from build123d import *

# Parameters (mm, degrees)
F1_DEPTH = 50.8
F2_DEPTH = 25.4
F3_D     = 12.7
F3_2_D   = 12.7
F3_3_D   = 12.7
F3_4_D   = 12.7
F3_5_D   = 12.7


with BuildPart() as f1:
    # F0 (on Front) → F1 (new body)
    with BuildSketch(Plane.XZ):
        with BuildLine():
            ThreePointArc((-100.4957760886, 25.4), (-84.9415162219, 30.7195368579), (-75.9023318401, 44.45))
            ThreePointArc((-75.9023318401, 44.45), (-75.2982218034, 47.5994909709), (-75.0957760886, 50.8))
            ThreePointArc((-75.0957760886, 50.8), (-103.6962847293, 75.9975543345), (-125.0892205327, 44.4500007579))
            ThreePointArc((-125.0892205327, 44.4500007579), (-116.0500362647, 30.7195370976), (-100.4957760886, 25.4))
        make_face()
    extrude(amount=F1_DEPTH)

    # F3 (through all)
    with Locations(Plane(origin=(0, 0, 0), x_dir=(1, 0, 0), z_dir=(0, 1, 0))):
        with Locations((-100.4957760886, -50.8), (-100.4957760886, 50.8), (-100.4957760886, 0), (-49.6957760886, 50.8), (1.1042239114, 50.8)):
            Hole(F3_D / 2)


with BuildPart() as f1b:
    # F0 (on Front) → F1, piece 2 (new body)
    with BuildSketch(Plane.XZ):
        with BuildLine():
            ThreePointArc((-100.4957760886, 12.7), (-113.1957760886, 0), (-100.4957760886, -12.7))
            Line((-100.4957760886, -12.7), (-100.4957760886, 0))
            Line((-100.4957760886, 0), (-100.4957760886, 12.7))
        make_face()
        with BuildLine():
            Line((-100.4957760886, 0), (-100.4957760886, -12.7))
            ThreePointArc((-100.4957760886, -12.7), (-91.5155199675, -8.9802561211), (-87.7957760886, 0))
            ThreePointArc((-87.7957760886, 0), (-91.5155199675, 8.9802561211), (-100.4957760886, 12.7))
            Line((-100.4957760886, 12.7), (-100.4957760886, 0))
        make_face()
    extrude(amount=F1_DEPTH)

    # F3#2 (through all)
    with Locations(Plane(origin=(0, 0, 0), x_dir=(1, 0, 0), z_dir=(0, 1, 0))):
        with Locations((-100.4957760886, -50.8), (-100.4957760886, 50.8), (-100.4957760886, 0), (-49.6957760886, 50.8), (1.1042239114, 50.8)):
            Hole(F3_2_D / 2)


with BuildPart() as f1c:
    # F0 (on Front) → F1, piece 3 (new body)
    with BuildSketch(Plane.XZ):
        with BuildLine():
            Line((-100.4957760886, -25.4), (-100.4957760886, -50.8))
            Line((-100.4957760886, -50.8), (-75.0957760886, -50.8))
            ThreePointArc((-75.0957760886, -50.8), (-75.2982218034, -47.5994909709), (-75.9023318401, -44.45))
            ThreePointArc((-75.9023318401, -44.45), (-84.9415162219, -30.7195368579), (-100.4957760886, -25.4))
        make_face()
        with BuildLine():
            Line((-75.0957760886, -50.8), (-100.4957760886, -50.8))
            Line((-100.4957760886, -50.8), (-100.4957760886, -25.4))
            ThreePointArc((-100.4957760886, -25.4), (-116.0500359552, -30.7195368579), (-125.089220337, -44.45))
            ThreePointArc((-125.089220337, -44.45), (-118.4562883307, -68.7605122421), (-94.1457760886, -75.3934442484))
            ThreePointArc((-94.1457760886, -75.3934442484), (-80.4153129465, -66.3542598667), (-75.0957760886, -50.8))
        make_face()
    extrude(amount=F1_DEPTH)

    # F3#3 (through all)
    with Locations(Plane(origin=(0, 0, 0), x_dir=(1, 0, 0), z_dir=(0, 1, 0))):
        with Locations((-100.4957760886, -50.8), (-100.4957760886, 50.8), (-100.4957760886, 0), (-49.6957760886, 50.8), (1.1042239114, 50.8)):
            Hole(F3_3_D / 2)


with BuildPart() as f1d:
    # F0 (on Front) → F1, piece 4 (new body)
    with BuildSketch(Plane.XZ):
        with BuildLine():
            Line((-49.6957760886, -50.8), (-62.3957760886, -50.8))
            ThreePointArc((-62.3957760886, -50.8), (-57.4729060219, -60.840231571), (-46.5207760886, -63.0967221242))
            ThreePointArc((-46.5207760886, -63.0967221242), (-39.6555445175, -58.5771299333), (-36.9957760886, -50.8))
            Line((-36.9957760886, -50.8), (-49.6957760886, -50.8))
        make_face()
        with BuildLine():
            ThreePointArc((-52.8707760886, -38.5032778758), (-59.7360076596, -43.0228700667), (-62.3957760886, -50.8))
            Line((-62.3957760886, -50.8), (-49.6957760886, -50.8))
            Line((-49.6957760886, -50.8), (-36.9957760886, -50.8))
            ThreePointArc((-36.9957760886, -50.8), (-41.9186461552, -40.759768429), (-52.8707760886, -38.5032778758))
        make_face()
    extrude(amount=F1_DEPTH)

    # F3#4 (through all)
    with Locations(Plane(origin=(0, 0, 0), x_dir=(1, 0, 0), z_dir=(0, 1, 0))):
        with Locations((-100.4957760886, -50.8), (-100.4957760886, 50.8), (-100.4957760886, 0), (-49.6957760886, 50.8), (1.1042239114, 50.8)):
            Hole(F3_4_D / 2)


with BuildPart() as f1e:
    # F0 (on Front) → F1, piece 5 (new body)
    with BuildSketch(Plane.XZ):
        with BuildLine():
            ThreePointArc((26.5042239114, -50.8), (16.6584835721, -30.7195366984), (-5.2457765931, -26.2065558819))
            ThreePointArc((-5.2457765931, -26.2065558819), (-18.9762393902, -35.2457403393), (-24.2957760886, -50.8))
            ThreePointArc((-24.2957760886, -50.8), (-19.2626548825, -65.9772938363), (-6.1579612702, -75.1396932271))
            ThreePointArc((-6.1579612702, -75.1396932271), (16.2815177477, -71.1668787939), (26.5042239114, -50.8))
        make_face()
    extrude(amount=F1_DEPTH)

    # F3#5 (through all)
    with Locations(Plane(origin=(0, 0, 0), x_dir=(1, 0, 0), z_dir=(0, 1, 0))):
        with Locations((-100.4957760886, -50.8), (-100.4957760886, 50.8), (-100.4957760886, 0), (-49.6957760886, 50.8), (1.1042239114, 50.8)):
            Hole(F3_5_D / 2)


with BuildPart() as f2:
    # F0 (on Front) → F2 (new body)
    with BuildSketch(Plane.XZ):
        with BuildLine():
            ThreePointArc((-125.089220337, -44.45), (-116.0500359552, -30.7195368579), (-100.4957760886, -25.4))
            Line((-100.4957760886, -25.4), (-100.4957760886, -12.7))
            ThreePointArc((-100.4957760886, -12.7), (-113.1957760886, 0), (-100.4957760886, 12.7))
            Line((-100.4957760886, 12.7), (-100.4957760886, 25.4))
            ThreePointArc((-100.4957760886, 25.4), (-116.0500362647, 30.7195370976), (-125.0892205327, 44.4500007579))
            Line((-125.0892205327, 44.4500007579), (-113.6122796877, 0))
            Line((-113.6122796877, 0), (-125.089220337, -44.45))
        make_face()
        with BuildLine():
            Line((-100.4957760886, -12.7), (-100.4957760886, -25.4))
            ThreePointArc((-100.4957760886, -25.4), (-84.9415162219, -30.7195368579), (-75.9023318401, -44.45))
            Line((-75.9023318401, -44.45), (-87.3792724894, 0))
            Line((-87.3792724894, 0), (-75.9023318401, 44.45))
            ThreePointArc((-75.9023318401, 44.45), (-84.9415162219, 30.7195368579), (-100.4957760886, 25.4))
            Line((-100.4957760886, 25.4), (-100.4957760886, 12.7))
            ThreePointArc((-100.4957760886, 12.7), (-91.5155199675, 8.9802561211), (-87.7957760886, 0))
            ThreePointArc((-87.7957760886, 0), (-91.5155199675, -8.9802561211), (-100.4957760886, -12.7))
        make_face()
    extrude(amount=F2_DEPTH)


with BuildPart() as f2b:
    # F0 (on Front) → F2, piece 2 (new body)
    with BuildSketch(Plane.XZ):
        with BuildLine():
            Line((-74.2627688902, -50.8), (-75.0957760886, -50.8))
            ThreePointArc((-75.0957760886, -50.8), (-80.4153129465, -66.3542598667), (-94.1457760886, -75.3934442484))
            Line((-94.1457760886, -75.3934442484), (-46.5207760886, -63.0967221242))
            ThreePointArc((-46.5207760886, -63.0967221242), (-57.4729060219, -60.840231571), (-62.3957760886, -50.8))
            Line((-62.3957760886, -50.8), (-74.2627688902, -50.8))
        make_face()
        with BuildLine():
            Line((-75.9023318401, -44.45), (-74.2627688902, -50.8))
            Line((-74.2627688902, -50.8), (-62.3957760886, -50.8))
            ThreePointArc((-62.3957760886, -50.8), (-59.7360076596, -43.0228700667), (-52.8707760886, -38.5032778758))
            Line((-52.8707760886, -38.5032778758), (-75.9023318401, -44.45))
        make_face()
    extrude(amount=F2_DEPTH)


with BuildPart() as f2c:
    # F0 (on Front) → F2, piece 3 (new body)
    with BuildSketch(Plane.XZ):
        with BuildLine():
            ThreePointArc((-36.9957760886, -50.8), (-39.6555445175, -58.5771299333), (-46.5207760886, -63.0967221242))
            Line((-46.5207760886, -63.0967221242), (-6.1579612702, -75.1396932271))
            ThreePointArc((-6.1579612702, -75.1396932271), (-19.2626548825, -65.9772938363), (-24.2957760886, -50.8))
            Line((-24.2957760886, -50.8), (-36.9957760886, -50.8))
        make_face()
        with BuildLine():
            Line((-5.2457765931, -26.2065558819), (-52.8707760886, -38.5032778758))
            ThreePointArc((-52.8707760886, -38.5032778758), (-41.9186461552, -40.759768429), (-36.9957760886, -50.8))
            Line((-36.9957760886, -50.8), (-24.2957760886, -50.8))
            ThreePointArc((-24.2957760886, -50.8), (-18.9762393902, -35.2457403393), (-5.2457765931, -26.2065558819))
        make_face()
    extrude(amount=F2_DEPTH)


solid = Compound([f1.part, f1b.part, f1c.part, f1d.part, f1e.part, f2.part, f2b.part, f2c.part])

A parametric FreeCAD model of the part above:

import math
import FreeCAD as App
import Part
import Sketcher

V = App.Vector
Q = App.Units.Quantity

doc = App.newDocument("Part")
body = doc.addObject("PartDesign::Body", "Body")

# Sketch on XZ plane
sketch1 = body.newObject("Sketcher::SketchObject", "Sketch")
sketch1.AttachmentSupport = (doc.getObject("XZ_Plane"), [""])
sketch1.MapMode = "FlatFace"
sketch1.addGeometry(Part.ArcOfCircle(Part.Circle(V(-100, 51, 0), V(0, 0, 1), 25), math.radians(-90), math.radians(-14)), False)
sketch1.addGeometry(Part.ArcOfCircle(Part.Circle(V(-100, 51, 0), V(0, 0, 1), 25), math.radians(-14.48), math.radians(0)), False)
sketch1.addGeometry(Part.ArcOfCircle(Part.Circle(V(-100, 51, 0), V(0, 0, 1), 25), math.radians(0), math.radians(194)), False)
sketch1.addGeometry(Part.ArcOfCircle(Part.Circle(V(-100, 51, 0), V(0, 0, 1), 25), math.radians(-166), math.radians(-90)), False)
sketch1.addConstraint(Sketcher.Constraint("Tangent", 0, 2, 1, 1))
sketch1.addConstraint(Sketcher.Constraint("Tangent", 1, 2, 2, 1))
sketch1.addConstraint(Sketcher.Constraint("Tangent", 2, 2, 3, 1))
sketch1.addConstraint(Sketcher.Constraint("Tangent", 3, 2, 0, 1))
sketch1.addConstraint(Sketcher.Constraint("Equal", 0, 1))
sketch1.addConstraint(Sketcher.Constraint("Horizontal", 3, 3, 1, 2))
sketch1.addConstraint(Sketcher.Constraint("Horizontal", 0, 2, 2, 2))
sketch1.addConstraint(Sketcher.Constraint("Vertical", 2, 3, 3, 2))
sketch1.addConstraint(Sketcher.Constraint("Radius", 0, Q("1 in")))
sketch1.addConstraint(Sketcher.Constraint("DistanceY", -1, 1, 0, 3, Q("2 in")))
sketch1.addConstraint(Sketcher.Constraint("DistanceY", -1, 1, 0, 2, Q("1.75 in")))
sketch1.addConstraint(Sketcher.Constraint("DistanceX", 0, 2, -1, 1, 75.902332))
pad1 = body.newObject("PartDesign::Pad", "Pad")
pad1.Profile = sketch1
pad1.Length = Q("2 in")

# Sketch on XZ plane
sketch2 = body.newObject("Sketcher::SketchObject", "Sketch001")
sketch2.AttachmentSupport = (doc.getObject("XZ_Plane"), [""])
sketch2.MapMode = "FlatFace"
sketch2.addGeometry(Part.Circle(V(-100, 51, 0), V(0, 0, 1), 6), False)
sketch2.addGeometry(Part.Circle(V(-100, -51, 0), V(0, 0, 1), 6), False)
sketch2.addGeometry(Part.Circle(V(-100, 0, 0), V(0, 0, 1), 6), False)
sketch2.addGeometry(Part.Circle(V(-50, -51, 0), V(0, 0, 1), 6), False)
sketch2.addGeometry(Part.Circle(V(1, -51, 0), V(0, 0, 1), 6), False)
sketch2.addConstraint(Sketcher.Constraint("Equal", 0, 1))
sketch2.addConstraint(Sketcher.Constraint("Equal", 1, 2))
sketch2.addConstraint(Sketcher.Constraint("Equal", 2, 3))
sketch2.addConstraint(Sketcher.Constraint("Equal", 3, 4))
sketch2.addConstraint(Sketcher.Constraint("Symmetric", 0, 3, 1, 3, -1))
sketch2.addConstraint(Sketcher.Constraint("PointOnObject", 2, 3, -1))
sketch2.addConstraint(Sketcher.Constraint("Horizontal", 1, 3, 3, 3))
sketch2.addConstraint(Sketcher.Constraint("Horizontal", 3, 3, 4, 3))
sketch2.addConstraint(Sketcher.Constraint("Vertical", 1, 3, 2, 3))
sketch2.addConstraint(Sketcher.Constraint("Diameter", 0, Q("0.5 in")))
sketch2.addConstraint(Sketcher.Constraint("DistanceY", -1, 1, 0, 3, Q("2 in")))
sketch2.addConstraint(Sketcher.Constraint("DistanceX", 1, 3, 3, 3, Q("2 in")))
sketch2.addConstraint(Sketcher.Constraint("DistanceX", 3, 3, 4, 3, Q("2 in")))
sketch2.addConstraint(Sketcher.Constraint("DistanceX", 0, 3, -1, 1, 100.495776))
doc.recompute()
hole = body.newObject("PartDesign::Hole", "Hole")
hole.Profile = sketch2
hole.ThreadType = "None"
hole.Diameter = Q("0.5 in")
hole.DepthType = "ThroughAll"
hole.Reversed = True
body2 = doc.addObject("PartDesign::Body", "Body001")

# Sketch on XZ plane
sketch3 = body2.newObject("Sketcher::SketchObject", "Sketch002")
sketch3.AttachmentSupport = (doc.getObject("XZ_Plane001"), [""])
sketch3.MapMode = "FlatFace"
sketch3.addGeometry(Part.ArcOfCircle(Part.Circle(V(-100, 0, 0), V(0, 0, 1), 13), math.radians(90), math.radians(270)), False)
sketch3.addGeometry(Part.ArcOfCircle(Part.Circle(V(-100, 0, 0), V(0, 0, 1), 13), math.radians(-90), math.radians(0)), False)
sketch3.addGeometry(Part.ArcOfCircle(Part.Circle(V(-100, 0, 0), V(0, 0, 1), 13), math.radians(0), math.radians(90)), False)
sketch3.addConstraint(Sketcher.Constraint("Tangent", 0, 2, 1, 1))
sketch3.addConstraint(Sketcher.Constraint("Tangent", 1, 2, 2, 1))
sketch3.addConstraint(Sketcher.Constraint("Tangent", 2, 2, 0, 1))
sketch3.addConstraint(Sketcher.Constraint("Symmetric", 0, 2, 2, 2, -1))
sketch3.addConstraint(Sketcher.Constraint("PointOnObject", 1, 2, -1))
sketch3.addConstraint(Sketcher.Constraint("Vertical", 2, 3, 0, 2))
sketch3.addConstraint(Sketcher.Constraint("Radius", 0, Q("0.5 in")))
sketch3.addConstraint(Sketcher.Constraint("DistanceX", 0, 3, -1, 1, 100.495776))
pad2 = body2.newObject("PartDesign::Pad", "Pad001")
pad2.Profile = sketch3
pad2.Length = Q("2 in")

# Sketch on XZ plane
sketch4 = body2.newObject("Sketcher::SketchObject", "Sketch003")
sketch4.AttachmentSupport = (doc.getObject("XZ_Plane001"), [""])
sketch4.MapMode = "FlatFace"
sketch4.addGeometry(Part.Circle(V(-100, 51, 0), V(0, 0, 1), 6), False)
sketch4.addGeometry(Part.Circle(V(-100, -51, 0), V(0, 0, 1), 6), False)
sketch4.addGeometry(Part.Circle(V(-100, 0, 0), V(0, 0, 1), 6), False)
sketch4.addGeometry(Part.Circle(V(-50, -51, 0), V(0, 0, 1), 6), False)
sketch4.addGeometry(Part.Circle(V(1, -51, 0), V(0, 0, 1), 6), False)
sketch4.addConstraint(Sketcher.Constraint("Equal", 0, 1))
sketch4.addConstraint(Sketcher.Constraint("Equal", 1, 2))
sketch4.addConstraint(Sketcher.Constraint("Equal", 2, 3))
sketch4.addConstraint(Sketcher.Constraint("Equal", 3, 4))
sketch4.addConstraint(Sketcher.Constraint("Symmetric", 0, 3, 1, 3, -1))
sketch4.addConstraint(Sketcher.Constraint("PointOnObject", 2, 3, -1))
sketch4.addConstraint(Sketcher.Constraint("Horizontal", 1, 3, 3, 3))
sketch4.addConstraint(Sketcher.Constraint("Horizontal", 3, 3, 4, 3))
sketch4.addConstraint(Sketcher.Constraint("Vertical", 1, 3, 2, 3))
sketch4.addConstraint(Sketcher.Constraint("Diameter", 0, Q("0.5 in")))
sketch4.addConstraint(Sketcher.Constraint("DistanceY", -1, 1, 0, 3, Q("2 in")))
sketch4.addConstraint(Sketcher.Constraint("DistanceX", 1, 3, 3, 3, Q("2 in")))
sketch4.addConstraint(Sketcher.Constraint("DistanceX", 3, 3, 4, 3, Q("2 in")))
sketch4.addConstraint(Sketcher.Constraint("DistanceX", 0, 3, -1, 1, 100.495776))
doc.recompute()
hole2 = body2.newObject("PartDesign::Hole", "Hole001")
hole2.Profile = sketch4
hole2.ThreadType = "None"
hole2.Diameter = Q("0.5 in")
hole2.DepthType = "ThroughAll"
hole2.Reversed = True
body3 = doc.addObject("PartDesign::Body", "Body002")

# Sketch on XZ plane
sketch5 = body3.newObject("Sketcher::SketchObject", "Sketch004")
sketch5.AttachmentSupport = (doc.getObject("XZ_Plane002"), [""])
sketch5.MapMode = "FlatFace"
sketch5.addGeometry(Part.ArcOfCircle(Part.Circle(V(-100, -51, 0), V(0, 0, 1), 25), math.radians(0), math.radians(14.48)), False)
sketch5.addGeometry(Part.ArcOfCircle(Part.Circle(V(-100, -51, 0), V(0, 0, 1), 25), math.radians(14), math.radians(166)), False)
sketch5.addGeometry(Part.ArcOfCircle(Part.Circle(V(-100, -51, 0), V(0, 0, 1), 25), math.radians(166), math.radians(284)), False)
sketch5.addGeometry(Part.ArcOfCircle(Part.Circle(V(-100, -51, 0), V(0, 0, 1), 25), math.radians(-76), math.radians(0)), False)
sketch5.addConstraint(Sketcher.Constraint("Tangent", 0, 2, 1, 1))
sketch5.addConstraint(Sketcher.Constraint("Tangent", 1, 2, 2, 1))
sketch5.addConstraint(Sketcher.Constraint("Tangent", 2, 2, 3, 1))
sketch5.addConstraint(Sketcher.Constraint("Tangent", 3, 2, 0, 1))
sketch5.addConstraint(Sketcher.Constraint("Equal", 0, 1))
sketch5.addConstraint(Sketcher.Constraint("Horizontal", 0, 2, 1, 2))
sketch5.addConstraint(Sketcher.Constraint("Horizontal", 2, 3, 3, 2))
sketch5.addConstraint(Sketcher.Constraint("Radius", 0, Q("1 in")))
sketch5.addConstraint(Sketcher.Constraint("DistanceY", 0, 3, -1, 1, Q("2 in")))
sketch5.addConstraint(Sketcher.Constraint("DistanceY", 0, 2, -1, 1, Q("1.75 in")))
sketch5.addConstraint(Sketcher.Constraint("DistanceX", 3, 3, 2, 2, Q("0.25 in")))
sketch5.addConstraint(Sketcher.Constraint("DistanceX", 0, 2, -1, 1, 75.902332))
pad3 = body3.newObject("PartDesign::Pad", "Pad002")
pad3.Profile = sketch5
pad3.Length = Q("2 in")

# Sketch on XZ plane
sketch6 = body3.newObject("Sketcher::SketchObject", "Sketch005")
sketch6.AttachmentSupport = (doc.getObject("XZ_Plane002"), [""])
sketch6.MapMode = "FlatFace"
sketch6.addGeometry(Part.Circle(V(-100, 51, 0), V(0, 0, 1), 6), False)
sketch6.addGeometry(Part.Circle(V(-100, -51, 0), V(0, 0, 1), 6), False)
sketch6.addGeometry(Part.Circle(V(-100, 0, 0), V(0, 0, 1), 6), False)
sketch6.addGeometry(Part.Circle(V(-50, -51, 0), V(0, 0, 1), 6), False)
sketch6.addGeometry(Part.Circle(V(1, -51, 0), V(0, 0, 1), 6), False)
sketch6.addConstraint(Sketcher.Constraint("Equal", 0, 1))
sketch6.addConstraint(Sketcher.Constraint("Equal", 1, 2))
sketch6.addConstraint(Sketcher.Constraint("Equal", 2, 3))
sketch6.addConstraint(Sketcher.Constraint("Equal", 3, 4))
sketch6.addConstraint(Sketcher.Constraint("Symmetric", 0, 3, 1, 3, -1))
sketch6.addConstraint(Sketcher.Constraint("PointOnObject", 2, 3, -1))
sketch6.addConstraint(Sketcher.Constraint("Horizontal", 1, 3, 3, 3))
sketch6.addConstraint(Sketcher.Constraint("Horizontal", 3, 3, 4, 3))
sketch6.addConstraint(Sketcher.Constraint("Vertical", 1, 3, 2, 3))
sketch6.addConstraint(Sketcher.Constraint("Diameter", 0, Q("0.5 in")))
sketch6.addConstraint(Sketcher.Constraint("DistanceY", -1, 1, 0, 3, Q("2 in")))
sketch6.addConstraint(Sketcher.Constraint("DistanceX", 1, 3, 3, 3, Q("2 in")))
sketch6.addConstraint(Sketcher.Constraint("DistanceX", 3, 3, 4, 3, Q("2 in")))
sketch6.addConstraint(Sketcher.Constraint("DistanceX", 0, 3, -1, 1, 100.495776))
doc.recompute()
hole3 = body3.newObject("PartDesign::Hole", "Hole002")
hole3.Profile = sketch6
hole3.ThreadType = "None"
hole3.Diameter = Q("0.5 in")
hole3.DepthType = "ThroughAll"
hole3.Reversed = True
body4 = doc.addObject("PartDesign::Body", "Body003")

# Sketch on XZ plane
sketch7 = body4.newObject("Sketcher::SketchObject", "Sketch006")
sketch7.AttachmentSupport = (doc.getObject("XZ_Plane003"), [""])
sketch7.MapMode = "FlatFace"
sketch7.addGeometry(Part.ArcOfCircle(Part.Circle(V(-50, -51, 0), V(0, 0, 1), 13), math.radians(180), math.radians(284)), False)
sketch7.addGeometry(Part.ArcOfCircle(Part.Circle(V(-50, -51, 0), V(0, 0, 1), 13), math.radians(-76), math.radians(0)), False)
sketch7.addGeometry(Part.ArcOfCircle(Part.Circle(V(-50, -51, 0), V(0, 0, 1), 13), math.radians(0), math.radians(104)), False)
sketch7.addGeometry(Part.ArcOfCircle(Part.Circle(V(-50, -51, 0), V(0, 0, 1), 13), math.radians(104), math.radians(180)), False)
sketch7.addConstraint(Sketcher.Constraint("Tangent", 0, 2, 1, 1))
sketch7.addConstraint(Sketcher.Constraint("Tangent", 1, 2, 2, 1))
sketch7.addConstraint(Sketcher.Constraint("Tangent", 2, 2, 3, 1))
sketch7.addConstraint(Sketcher.Constraint("Tangent", 3, 2, 0, 1))
sketch7.addConstraint(Sketcher.Constraint("Equal", 0, 1))
sketch7.addConstraint(Sketcher.Constraint("Horizontal", 3, 3, 1, 2))
sketch7.addConstraint(Sketcher.Constraint("Horizontal", 1, 2, 3, 2))
sketch7.addConstraint(Sketcher.Constraint("Radius", 0, Q("0.5 in")))
sketch7.addConstraint(Sketcher.Constraint("DistanceY", 0, 3, -1, 1, Q("2 in")))
sketch7.addConstraint(Sketcher.Constraint("DistanceX", 1, 3, 0, 2, Q("0.125 in")))
sketch7.addConstraint(Sketcher.Constraint("DistanceX", 2, 2, 0, 3, Q("0.125 in")))
sketch7.addConstraint(Sketcher.Constraint("DistanceX", 0, 3, -1, 1, 49.695776))
pad4 = body4.newObject("PartDesign::Pad", "Pad003")
pad4.Profile = sketch7
pad4.Length = Q("2 in")

# Sketch on XZ plane
sketch8 = body4.newObject("Sketcher::SketchObject", "Sketch007")
sketch8.AttachmentSupport = (doc.getObject("XZ_Plane003"), [""])
sketch8.MapMode = "FlatFace"
sketch8.addGeometry(Part.Circle(V(-100, 51, 0), V(0, 0, 1), 6), False)
sketch8.addGeometry(Part.Circle(V(-100, -51, 0), V(0, 0, 1), 6), False)
sketch8.addGeometry(Part.Circle(V(-100, 0, 0), V(0, 0, 1), 6), False)
sketch8.addGeometry(Part.Circle(V(-50, -51, 0), V(0, 0, 1), 6), False)
sketch8.addGeometry(Part.Circle(V(1, -51, 0), V(0, 0, 1), 6), False)
sketch8.addConstraint(Sketcher.Constraint("Equal", 0, 1))
sketch8.addConstraint(Sketcher.Constraint("Equal", 1, 2))
sketch8.addConstraint(Sketcher.Constraint("Equal", 2, 3))
sketch8.addConstraint(Sketcher.Constraint("Equal", 3, 4))
sketch8.addConstraint(Sketcher.Constraint("Symmetric", 0, 3, 1, 3, -1))
sketch8.addConstraint(Sketcher.Constraint("PointOnObject", 2, 3, -1))
sketch8.addConstraint(Sketcher.Constraint("Horizontal", 1, 3, 3, 3))
sketch8.addConstraint(Sketcher.Constraint("Horizontal", 3, 3, 4, 3))
sketch8.addConstraint(Sketcher.Constraint("Vertical", 1, 3, 2, 3))
sketch8.addConstraint(Sketcher.Constraint("Diameter", 0, Q("0.5 in")))
sketch8.addConstraint(Sketcher.Constraint("DistanceY", -1, 1, 0, 3, Q("2 in")))
sketch8.addConstraint(Sketcher.Constraint("DistanceX", 1, 3, 3, 3, Q("2 in")))
sketch8.addConstraint(Sketcher.Constraint("DistanceX", 3, 3, 4, 3, Q("2 in")))
sketch8.addConstraint(Sketcher.Constraint("DistanceX", 0, 3, -1, 1, 100.495776))
doc.recompute()
hole4 = body4.newObject("PartDesign::Hole", "Hole003")
hole4.Profile = sketch8
hole4.ThreadType = "None"
hole4.Diameter = Q("0.5 in")
hole4.DepthType = "ThroughAll"
hole4.Reversed = True
body5 = doc.addObject("PartDesign::Body", "Body004")

# Sketch on XZ plane
sketch9 = body5.newObject("Sketcher::SketchObject", "Sketch008")
sketch9.AttachmentSupport = (doc.getObject("XZ_Plane004"), [""])
sketch9.MapMode = "FlatFace"
sketch9.addGeometry(Part.ArcOfCircle(Part.Circle(V(1, -51, 0), V(0, 0, 1), 25), math.radians(0), math.radians(104)), False)
sketch9.addGeometry(Part.ArcOfCircle(Part.Circle(V(1, -51, 0), V(0, 0, 1), 25), math.radians(104), math.radians(180)), False)
sketch9.addGeometry(Part.ArcOfCircle(Part.Circle(V(1, -51, 0), V(0, 0, 1), 25), math.radians(180), math.radians(253)), False)
sketch9.addGeometry(Part.ArcOfCircle(Part.Circle(V(1, -51, 0), V(0, 0, 1), 25), math.radians(-107), math.radians(0)), False)
sketch9.addConstraint(Sketcher.Constraint("Tangent", 0, 2, 1, 1))
sketch9.addConstraint(Sketcher.Constraint("Tangent", 1, 2, 2, 1))
sketch9.addConstraint(Sketcher.Constraint("Tangent", 2, 2, 3, 1))
sketch9.addConstraint(Sketcher.Constraint("Tangent", 3, 2, 0, 1))
sketch9.addConstraint(Sketcher.Constraint("Equal", 0, 1))
sketch9.addConstraint(Sketcher.Constraint("Horizontal", 3, 3, 1, 2))
sketch9.addConstraint(Sketcher.Constraint("Horizontal", 1, 2, 3, 2))
sketch9.addConstraint(Sketcher.Constraint("Radius", 0, Q("1 in")))
sketch9.addConstraint(Sketcher.Constraint("DistanceY", 0, 3, -1, 1, Q("2 in")))
sketch9.addConstraint(Sketcher.Constraint("DistanceX", 0, 2, 0, 3, Q("0.25 in")))
sketch9.addConstraint(Sketcher.Constraint("DistanceX", 2, 2, -1, 1, 6.157961))
sketch9.addConstraint(Sketcher.Constraint("DistanceX", -1, 1, 0, 3, 1.104224))
pad5 = body5.newObject("PartDesign::Pad", "Pad004")
pad5.Profile = sketch9
pad5.Length = Q("2 in")

# Sketch on XZ plane
sketch10 = body5.newObject("Sketcher::SketchObject", "Sketch009")
sketch10.AttachmentSupport = (doc.getObject("XZ_Plane004"), [""])
sketch10.MapMode = "FlatFace"
sketch10.addGeometry(Part.Circle(V(-100, 51, 0), V(0, 0, 1), 6), False)
sketch10.addGeometry(Part.Circle(V(-100, -51, 0), V(0, 0, 1), 6), False)
sketch10.addGeometry(Part.Circle(V(-100, 0, 0), V(0, 0, 1), 6), False)
sketch10.addGeometry(Part.Circle(V(-50, -51, 0), V(0, 0, 1), 6), False)
sketch10.addGeometry(Part.Circle(V(1, -51, 0), V(0, 0, 1), 6), False)
sketch10.addConstraint(Sketcher.Constraint("Equal", 0, 1))
sketch10.addConstraint(Sketcher.Constraint("Equal", 1, 2))
sketch10.addConstraint(Sketcher.Constraint("Equal", 2, 3))
sketch10.addConstraint(Sketcher.Constraint("Equal", 3, 4))
sketch10.addConstraint(Sketcher.Constraint("Symmetric", 0, 3, 1, 3, -1))
sketch10.addConstraint(Sketcher.Constraint("PointOnObject", 2, 3, -1))
sketch10.addConstraint(Sketcher.Constraint("Horizontal", 1, 3, 3, 3))
sketch10.addConstraint(Sketcher.Constraint("Horizontal", 3, 3, 4, 3))
sketch10.addConstraint(Sketcher.Constraint("Vertical", 1, 3, 2, 3))
sketch10.addConstraint(Sketcher.Constraint("Diameter", 0, Q("0.5 in")))
sketch10.addConstraint(Sketcher.Constraint("DistanceY", -1, 1, 0, 3, Q("2 in")))
sketch10.addConstraint(Sketcher.Constraint("DistanceX", 1, 3, 3, 3, Q("2 in")))
sketch10.addConstraint(Sketcher.Constraint("DistanceX", 3, 3, 4, 3, Q("2 in")))
sketch10.addConstraint(Sketcher.Constraint("DistanceX", 0, 3, -1, 1, 100.495776))
doc.recompute()
hole5 = body5.newObject("PartDesign::Hole", "Hole004")
hole5.Profile = sketch10
hole5.ThreadType = "None"
hole5.Diameter = Q("0.5 in")
hole5.DepthType = "ThroughAll"
hole5.Reversed = True
body6 = doc.addObject("PartDesign::Body", "Body005")

# Sketch on XZ plane
sketch11 = body6.newObject("Sketcher::SketchObject", "Sketch010")
sketch11.AttachmentSupport = (doc.getObject("XZ_Plane005"), [""])
sketch11.MapMode = "FlatFace"
sketch11.addGeometry(Part.ArcOfCircle(Part.Circle(V(-100, -51, 0), V(0, 0, 1), 25), math.radians(14), math.radians(166)), False)
sketch11.addGeometry(Part.LineSegment(V(-76, -44, 0), V(-87, 0, 0)), False)
sketch11.addGeometry(Part.LineSegment(V(-87, 0, 0), V(-76, 44, 0)), False)
sketch11.addGeometry(Part.ArcOfCircle(Part.Circle(V(-100, 51, 0), V(0, 0, 1), 25), math.radians(-90), math.radians(-14)), False)
sketch11.addGeometry(Part.ArcOfCircle(Part.Circle(V(-100, 51, 0), V(0, 0, 1), 25), math.radians(-166), math.radians(-90)), False)
sketch11.addGeometry(Part.LineSegment(V(-125, 44, 0), V(-114, 0, 0)), False)
sketch11.addGeometry(Part.LineSegment(V(-114, 0, 0), V(-125, -44, 0)), False)
sketch11.addGeometry(Part.ArcOfCircle(Part.Circle(V(-100, 0, 0), V(0, 0, 1), 13), math.radians(90), math.radians(270)), False)
sketch11.addGeometry(Part.ArcOfCircle(Part.Circle(V(-100, 0, 0), V(0, 0, 1), 13), math.radians(0), math.radians(90)), False)
sketch11.addGeometry(Part.ArcOfCircle(Part.Circle(V(-100, 0, 0), V(0, 0, 1), 13), math.radians(-90), math.radians(0)), False)
sketch11.addConstraint(Sketcher.Constraint("Tangent", 0, 1, 1, 1))
sketch11.addConstraint(Sketcher.Constraint("Coincident", 1, 2, 2, 1))
sketch11.addConstraint(Sketcher.Constraint("Tangent", 2, 2, 3, 2))
sketch11.addConstraint(Sketcher.Constraint("Tangent", 3, 1, 4, 2))
sketch11.addConstraint(Sketcher.Constraint("Tangent", 4, 1, 5, 1))
sketch11.addConstraint(Sketcher.Constraint("Coincident", 5, 2, 6, 1))
sketch11.addConstraint(Sketcher.Constraint("Tangent", 6, 2, 0, 2))
sketch11.addConstraint(Sketcher.Constraint("Tangent", 7, 1, 8, 2))
sketch11.addConstraint(Sketcher.Constraint("Tangent", 8, 1, 9, 2))
sketch11.addConstraint(Sketcher.Constraint("Tangent", 9, 1, 7, 2))
sketch11.addConstraint(Sketcher.Constraint("Equal", 0, 3))
sketch11.addConstraint(Sketcher.Constraint("Equal", 3, 4))
sketch11.addConstraint(Sketcher.Constraint("Symmetric", 0, 3, 3, 3, -1))
sketch11.addConstraint(Sketcher.Constraint("Symmetric", 7, 1, 9, 1, -1))
sketch11.addConstraint(Sketcher.Constraint("PointOnObject", 1, 2, -1))
sketch11.addConstraint(Sketcher.Constraint("PointOnObject", 5, 2, -1))
sketch11.addConstraint(Sketcher.Constraint("PointOnObject", 8, 1, -1))
sketch11.addConstraint(Sketcher.Constraint("Parallel", 1, 5))
sketch11.addConstraint(Sketcher.Constraint("Vertical", 4, 3, 7, 3))
sketch11.addConstraint(Sketcher.Constraint("Vertical", 9, 3, 3, 1))
sketch11.addConstraint(Sketcher.Constraint("Vertical", 3, 1, 7, 1))
sketch11.addConstraint(Sketcher.Constraint("Radius", 0, Q("1 in")))
sketch11.addConstraint(Sketcher.Constraint("Radius", 7, Q("0.5 in")))
sketch11.addConstraint(Sketcher.Constraint("DistanceY", 0, 3, -1, 1, Q("2 in")))
sketch11.addConstraint(Sketcher.Constraint("DistanceY", 0, 1, -1, 1, Q("1.75 in")))
sketch11.addConstraint(Sketcher.Constraint("DistanceX", 0, 1, -1, 1, 75.902332))
pad6 = body6.newObject("PartDesign::Pad", "Pad005")
pad6.Profile = sketch11
pad6.Length = Q("1 in")
body7 = doc.addObject("PartDesign::Body", "Body006")

# Sketch on XZ plane
sketch12 = body7.newObject("Sketcher::SketchObject", "Sketch011")
sketch12.AttachmentSupport = (doc.getObject("XZ_Plane006"), [""])
sketch12.MapMode = "FlatFace"
sketch12.addGeometry(Part.ArcOfCircle(Part.Circle(V(-100.5, -50.8, 0), V(0, 0, 1), 25.4), math.radians(-76), math.radians(0)), False)
sketch12.addGeometry(Part.LineSegment(V(-94.1, -75.4, 0), V(-46.5, -63.1, 0)), False)
sketch12.addGeometry(Part.ArcOfCircle(Part.Circle(V(-49.7, -50.8, 0), V(0, 0, 1), 12.7), math.radians(180), math.radians(284)), False)
sketch12.addGeometry(Part.ArcOfCircle(Part.Circle(V(-49.7, -50.8, 0), V(0, 0, 1), 12.7), math.radians(104), math.radians(180)), False)
sketch12.addGeometry(Part.LineSegment(V(-52.9, -38.5, 0), V(-75.9, -44.5, 0)), False)
sketch12.addGeometry(Part.LineSegment(V(-75.9, -44.5, 0), V(-74.3, -50.8, 0)), False)
sketch12.addGeometry(Part.LineSegment(V(-74.3, -50.8, 0), V(-75.1, -50.8, 0)), False)
sketch12.addConstraint(Sketcher.Constraint("Tangent", 0, 1, 1, 1))
sketch12.addConstraint(Sketcher.Constraint("Tangent", 1, 2, 2, 2))
sketch12.addConstraint(Sketcher.Constraint("Tangent", 2, 1, 3, 2))
sketch12.addConstraint(Sketcher.Constraint("Tangent", 3, 1, 4, 1))
sketch12.addConstraint(Sketcher.Constraint("Coincident", 4, 2, 5, 1))
sketch12.addConstraint(Sketcher.Constraint("Coincident", 5, 2, 6, 1))
sketch12.addConstraint(Sketcher.Constraint("Coincident", 6, 2, 0, 2))
sketch12.addConstraint(Sketcher.Constraint("Horizontal", 6))
sketch12.addConstraint(Sketcher.Constraint("Equal", 2, 3))
sketch12.addConstraint(Sketcher.Constraint("Parallel", 1, 4))
sketch12.addConstraint(Sketcher.Constraint("Perpendicular", 4, 5))
sketch12.addConstraint(Sketcher.Constraint("Horizontal", 0, 3, 2, 3))
sketch12.addConstraint(Sketcher.Constraint("Horizontal", 3, 3, 2, 1))
sketch12.addConstraint(Sketcher.Constraint("Horizontal", 2, 1, 5, 2))
sketch12.addConstraint(Sketcher.Constraint("Radius", 0, Q("1 in")))
sketch12.addConstraint(Sketcher.Constraint("Radius", 2, Q("0.5 in")))
sketch12.addConstraint(Sketcher.Constraint("DistanceY", 0, 3, -1, 1, Q("2 in")))
sketch12.addConstraint(Sketcher.Constraint("DistanceX", 0, 3, 2, 3, Q("2 in")))
sketch12.addConstraint(Sketcher.Constraint("DistanceY", 4, 2, -1, 1, Q("1.75 in")))
sketch12.addConstraint(Sketcher.Constraint("DistanceX", 4, 2, -1, 1, 75.902332))
pad7 = body7.newObject("PartDesign::Pad", "Pad006")
pad7.Profile = sketch12
pad7.Length = Q("1 in")
body8 = doc.addObject("PartDesign::Body", "Body007")

# Sketch on XZ plane
sketch13 = body8.newObject("Sketcher::SketchObject", "Sketch012")
sketch13.AttachmentSupport = (doc.getObject("XZ_Plane007"), [""])
sketch13.MapMode = "FlatFace"
sketch13.addGeometry(Part.ArcOfCircle(Part.Circle(V(-50, -51, 0), V(0, 0, 1), 13), math.radians(-76), math.radians(0)), False)
sketch13.addGeometry(Part.LineSegment(V(-47, -63, 0), V(-6, -75, 0)), False)
sketch13.addGeometry(Part.ArcOfCircle(Part.Circle(V(1, -51, 0), V(0, 0, 1), 25), math.radians(180), math.radians(253)), False)
sketch13.addGeometry(Part.ArcOfCircle(Part.Circle(V(1, -51, 0), V(0, 0, 1), 25), math.radians(104), math.radians(180)), False)
sketch13.addGeometry(Part.LineSegment(V(-5, -26, 0), V(-53, -39, 0)), False)
sketch13.addGeometry(Part.ArcOfCircle(Part.Circle(V(-50, -51, 0), V(0, 0, 1), 13), math.radians(0), math.radians(104)), False)
sketch13.addConstraint(Sketcher.Constraint("Coincident", 0, 1, 1, 1))
sketch13.addConstraint(Sketcher.Constraint("Tangent", 1, 2, 2, 2))
sketch13.addConstraint(Sketcher.Constraint("Tangent", 2, 1, 3, 2))
sketch13.addConstraint(Sketcher.Constraint("Tangent", 3, 1, 4, 1))
sketch13.addConstraint(Sketcher.Constraint("Tangent", 4, 2, 5, 2))
sketch13.addConstraint(Sketcher.Constraint("Tangent", 5, 1, 0, 2))
sketch13.addConstraint(Sketcher.Constraint("Equal", 2, 3))
sketch13.addConstraint(Sketcher.Constraint("Equal", 0, 5))
sketch13.addConstraint(Sketcher.Constraint("Horizontal", 0, 3, 2, 3))
sketch13.addConstraint(Sketcher.Constraint("Horizontal", 5, 3, 2, 1))
sketch13.addConstraint(Sketcher.Constraint("Horizontal", 2, 1, 5, 1))
sketch13.addConstraint(Sketcher.Constraint("Radius", 2, Q("1 in")))
sketch13.addConstraint(Sketcher.Constraint("Radius", 0, Q("0.5 in")))
sketch13.addConstraint(Sketcher.Constraint("DistanceY", 0, 3, -1, 1, Q("2 in")))
sketch13.addConstraint(Sketcher.Constraint("DistanceX", 0, 3, 2, 3, Q("2 in")))
sketch13.addConstraint(Sketcher.Constraint("DistanceX", 4, 2, 0, 1, Q("0.25 in")))
sketch13.addConstraint(Sketcher.Constraint("DistanceX", 1, 2, -1, 1, 6.157961))
pad8 = body8.newObject("PartDesign::Pad", "Pad007")
pad8.Profile = sketch13
pad8.Length = Q("1 in")

doc.recompute()
